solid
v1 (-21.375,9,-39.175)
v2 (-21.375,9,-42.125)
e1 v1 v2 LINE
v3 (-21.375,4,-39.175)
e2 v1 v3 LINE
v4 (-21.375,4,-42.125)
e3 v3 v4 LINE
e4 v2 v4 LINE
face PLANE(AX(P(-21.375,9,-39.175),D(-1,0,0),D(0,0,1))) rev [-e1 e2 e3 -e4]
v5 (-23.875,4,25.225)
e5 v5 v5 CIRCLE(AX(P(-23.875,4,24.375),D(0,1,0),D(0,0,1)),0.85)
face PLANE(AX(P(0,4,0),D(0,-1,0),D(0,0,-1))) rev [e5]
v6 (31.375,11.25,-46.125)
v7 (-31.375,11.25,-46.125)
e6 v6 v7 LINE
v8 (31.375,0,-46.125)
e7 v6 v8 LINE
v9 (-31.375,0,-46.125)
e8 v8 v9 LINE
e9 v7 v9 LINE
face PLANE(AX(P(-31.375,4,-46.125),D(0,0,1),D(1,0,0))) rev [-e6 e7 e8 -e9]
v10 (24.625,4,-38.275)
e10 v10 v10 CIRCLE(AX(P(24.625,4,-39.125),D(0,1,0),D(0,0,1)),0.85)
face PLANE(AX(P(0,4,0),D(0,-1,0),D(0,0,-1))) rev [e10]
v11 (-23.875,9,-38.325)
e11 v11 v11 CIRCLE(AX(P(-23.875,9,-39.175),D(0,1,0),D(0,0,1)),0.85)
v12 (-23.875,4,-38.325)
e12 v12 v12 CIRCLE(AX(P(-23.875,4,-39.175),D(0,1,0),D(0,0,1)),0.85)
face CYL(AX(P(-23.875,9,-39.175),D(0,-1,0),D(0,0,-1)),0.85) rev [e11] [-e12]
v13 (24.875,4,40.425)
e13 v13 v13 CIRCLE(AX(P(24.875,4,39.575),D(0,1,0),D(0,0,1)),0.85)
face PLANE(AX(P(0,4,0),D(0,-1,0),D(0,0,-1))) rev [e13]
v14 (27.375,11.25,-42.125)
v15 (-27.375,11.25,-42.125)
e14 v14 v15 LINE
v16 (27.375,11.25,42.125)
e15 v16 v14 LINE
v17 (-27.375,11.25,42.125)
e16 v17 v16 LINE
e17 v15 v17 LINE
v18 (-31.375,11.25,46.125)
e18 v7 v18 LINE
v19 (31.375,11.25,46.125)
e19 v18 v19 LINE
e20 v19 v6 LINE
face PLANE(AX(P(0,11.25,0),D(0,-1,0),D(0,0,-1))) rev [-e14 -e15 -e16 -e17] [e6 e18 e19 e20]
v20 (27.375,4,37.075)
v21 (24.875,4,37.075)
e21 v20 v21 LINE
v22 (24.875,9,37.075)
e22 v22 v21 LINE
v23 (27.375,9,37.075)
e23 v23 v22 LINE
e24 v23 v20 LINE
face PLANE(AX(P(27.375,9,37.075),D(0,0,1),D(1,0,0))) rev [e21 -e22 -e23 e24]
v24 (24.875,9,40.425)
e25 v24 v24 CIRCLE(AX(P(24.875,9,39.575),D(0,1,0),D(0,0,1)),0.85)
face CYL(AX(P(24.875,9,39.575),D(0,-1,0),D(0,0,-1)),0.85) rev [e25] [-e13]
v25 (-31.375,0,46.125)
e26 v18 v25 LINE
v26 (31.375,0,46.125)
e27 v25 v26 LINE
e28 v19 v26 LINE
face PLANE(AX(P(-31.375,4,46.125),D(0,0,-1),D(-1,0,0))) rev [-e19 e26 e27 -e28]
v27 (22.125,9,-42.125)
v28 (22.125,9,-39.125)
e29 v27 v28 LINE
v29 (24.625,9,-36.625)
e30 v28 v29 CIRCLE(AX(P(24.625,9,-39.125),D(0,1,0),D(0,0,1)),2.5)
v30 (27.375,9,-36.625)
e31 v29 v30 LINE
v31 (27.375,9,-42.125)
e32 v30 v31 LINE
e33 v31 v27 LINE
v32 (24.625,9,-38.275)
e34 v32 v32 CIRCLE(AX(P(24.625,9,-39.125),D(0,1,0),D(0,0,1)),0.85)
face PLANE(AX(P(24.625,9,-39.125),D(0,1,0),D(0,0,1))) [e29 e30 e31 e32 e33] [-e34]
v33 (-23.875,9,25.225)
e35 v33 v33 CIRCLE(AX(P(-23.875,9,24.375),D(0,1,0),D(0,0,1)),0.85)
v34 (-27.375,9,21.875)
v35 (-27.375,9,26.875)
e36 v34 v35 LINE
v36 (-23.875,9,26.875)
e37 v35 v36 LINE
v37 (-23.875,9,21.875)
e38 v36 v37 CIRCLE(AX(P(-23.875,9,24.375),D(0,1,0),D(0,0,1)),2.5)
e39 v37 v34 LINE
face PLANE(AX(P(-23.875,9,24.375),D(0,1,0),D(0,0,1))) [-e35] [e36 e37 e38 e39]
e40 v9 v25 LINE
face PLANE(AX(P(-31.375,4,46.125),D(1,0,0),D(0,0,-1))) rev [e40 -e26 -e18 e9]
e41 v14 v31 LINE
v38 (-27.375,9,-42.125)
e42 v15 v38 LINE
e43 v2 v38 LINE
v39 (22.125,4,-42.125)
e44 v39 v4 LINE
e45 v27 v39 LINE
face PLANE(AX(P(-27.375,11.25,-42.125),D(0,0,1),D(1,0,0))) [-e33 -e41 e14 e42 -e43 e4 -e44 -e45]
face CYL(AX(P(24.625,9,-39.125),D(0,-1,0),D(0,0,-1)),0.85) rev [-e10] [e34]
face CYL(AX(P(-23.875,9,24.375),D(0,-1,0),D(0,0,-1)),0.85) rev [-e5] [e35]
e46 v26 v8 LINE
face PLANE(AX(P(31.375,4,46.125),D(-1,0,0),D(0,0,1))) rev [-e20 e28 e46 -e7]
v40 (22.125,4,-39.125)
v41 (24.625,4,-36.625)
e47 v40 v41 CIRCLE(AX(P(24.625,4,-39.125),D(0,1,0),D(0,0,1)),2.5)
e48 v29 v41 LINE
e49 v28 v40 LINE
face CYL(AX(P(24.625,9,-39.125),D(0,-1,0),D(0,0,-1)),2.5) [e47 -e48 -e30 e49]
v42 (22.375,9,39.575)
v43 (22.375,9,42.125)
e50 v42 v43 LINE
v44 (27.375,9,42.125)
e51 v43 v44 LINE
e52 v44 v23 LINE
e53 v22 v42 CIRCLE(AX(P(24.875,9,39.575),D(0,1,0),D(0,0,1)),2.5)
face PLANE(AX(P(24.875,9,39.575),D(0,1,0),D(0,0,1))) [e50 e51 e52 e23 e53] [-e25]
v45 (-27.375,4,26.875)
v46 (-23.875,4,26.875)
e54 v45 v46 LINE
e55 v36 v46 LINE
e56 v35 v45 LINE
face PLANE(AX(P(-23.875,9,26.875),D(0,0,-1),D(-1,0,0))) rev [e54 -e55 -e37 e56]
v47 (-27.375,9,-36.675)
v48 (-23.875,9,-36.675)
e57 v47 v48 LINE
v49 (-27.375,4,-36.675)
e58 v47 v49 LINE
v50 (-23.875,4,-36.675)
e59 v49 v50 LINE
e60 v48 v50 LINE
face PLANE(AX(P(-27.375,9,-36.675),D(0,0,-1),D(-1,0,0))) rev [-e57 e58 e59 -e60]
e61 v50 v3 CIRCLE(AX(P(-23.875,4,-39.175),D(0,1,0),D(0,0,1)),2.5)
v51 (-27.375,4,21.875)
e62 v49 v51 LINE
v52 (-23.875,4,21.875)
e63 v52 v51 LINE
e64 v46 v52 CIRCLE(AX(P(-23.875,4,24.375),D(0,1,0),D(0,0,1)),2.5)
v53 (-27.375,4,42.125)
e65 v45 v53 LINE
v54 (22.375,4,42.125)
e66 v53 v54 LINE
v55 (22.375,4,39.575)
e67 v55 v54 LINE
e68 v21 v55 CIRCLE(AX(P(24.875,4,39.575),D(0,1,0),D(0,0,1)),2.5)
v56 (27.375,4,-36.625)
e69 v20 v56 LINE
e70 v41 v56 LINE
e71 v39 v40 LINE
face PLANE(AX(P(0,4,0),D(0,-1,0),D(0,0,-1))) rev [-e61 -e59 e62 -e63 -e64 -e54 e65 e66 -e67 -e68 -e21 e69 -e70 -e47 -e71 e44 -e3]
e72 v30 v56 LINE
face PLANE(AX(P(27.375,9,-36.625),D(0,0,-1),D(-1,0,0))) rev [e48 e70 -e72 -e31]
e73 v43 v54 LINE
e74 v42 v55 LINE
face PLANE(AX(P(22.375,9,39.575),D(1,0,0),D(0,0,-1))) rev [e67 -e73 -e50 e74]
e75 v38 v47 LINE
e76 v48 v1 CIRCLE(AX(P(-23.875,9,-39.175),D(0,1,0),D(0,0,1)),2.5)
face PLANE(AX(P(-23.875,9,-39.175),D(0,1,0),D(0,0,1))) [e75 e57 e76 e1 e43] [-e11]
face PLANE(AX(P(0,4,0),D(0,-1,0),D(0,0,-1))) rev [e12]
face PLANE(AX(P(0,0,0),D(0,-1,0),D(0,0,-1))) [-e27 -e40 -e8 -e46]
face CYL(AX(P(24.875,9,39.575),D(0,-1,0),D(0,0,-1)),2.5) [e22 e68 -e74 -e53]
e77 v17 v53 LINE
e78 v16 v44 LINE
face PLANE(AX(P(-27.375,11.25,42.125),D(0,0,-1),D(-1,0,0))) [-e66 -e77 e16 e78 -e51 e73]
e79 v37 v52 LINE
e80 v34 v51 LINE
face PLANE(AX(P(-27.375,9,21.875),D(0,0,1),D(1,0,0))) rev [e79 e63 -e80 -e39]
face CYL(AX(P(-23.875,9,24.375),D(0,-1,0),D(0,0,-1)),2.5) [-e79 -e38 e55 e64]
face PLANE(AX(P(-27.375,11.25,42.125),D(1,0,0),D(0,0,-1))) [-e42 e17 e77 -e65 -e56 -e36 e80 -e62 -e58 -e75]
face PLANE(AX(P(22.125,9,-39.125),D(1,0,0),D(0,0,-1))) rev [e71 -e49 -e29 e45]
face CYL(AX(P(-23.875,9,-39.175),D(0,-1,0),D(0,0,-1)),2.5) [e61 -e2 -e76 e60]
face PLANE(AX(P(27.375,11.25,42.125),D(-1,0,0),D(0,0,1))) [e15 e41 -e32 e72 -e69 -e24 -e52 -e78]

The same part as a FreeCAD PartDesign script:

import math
import FreeCAD as App
import Part
import Sketcher
from FreeCAD import Vector

doc = App.newDocument("Part")
body = doc.addObject("PartDesign::Body", "Body")

sketch1 = doc.addObject("Sketcher::SketchObject", "Sketch")
body.addObject(sketch1)
sketch1.AttachmentSupport = (doc.XZ_Plane, [""])
sketch1.MapMode = "FlatFace"
sketch1.addGeometry(Part.LineSegment(Vector(-31, -46, 0), Vector(-31, 46, 0)), False)
sketch1.addGeometry(Part.LineSegment(Vector(-31, 46, 0), Vector(31, 46, 0)), False)
sketch1.addGeometry(Part.LineSegment(Vector(31, 46, 0), Vector(31, -46, 0)), False)
sketch1.addGeometry(Part.LineSegment(Vector(31, -46, 0), Vector(-31, -46, 0)), False)
sketch1.addConstraint(Sketcher.Constraint("Coincident", 0, 2, 1, 1))
sketch1.addConstraint(Sketcher.Constraint("Coincident", 1, 2, 2, 1))
sketch1.addConstraint(Sketcher.Constraint("Coincident", 2, 2, 3, 1))
sketch1.addConstraint(Sketcher.Constraint("Coincident", 3, 2, 0, 1))
sketch1.addConstraint(Sketcher.Constraint("Vertical", 0))
sketch1.addConstraint(Sketcher.Constraint("Horizontal", 1))
sketch1.addConstraint(Sketcher.Constraint("Vertical", 2))
sketch1.addConstraint(Sketcher.Constraint("Horizontal", 3))
sketch1.addConstraint(Sketcher.Constraint("Symmetric", 0, 2, 2, 2, -1, 1))
sketch1.addConstraint(Sketcher.Constraint("DistanceX", 1, 1, 1, 2, 62.75))
sketch1.addConstraint(Sketcher.Constraint("DistanceY", 0, 1, 0, 2, 92.25))
pad1 = doc.addObject("PartDesign::Pad", "Pad")
body.addObject(pad1)
pad1.Profile = sketch1
pad1.Length = 4
pad1.Reversed = True

sketch2 = doc.addObject("Sketcher::SketchObject", "Sketch001")
body.addObject(sketch2)
sketch2.AttachmentSupport = (doc.XZ_Plane, [""])
sketch2.MapMode = "FlatFace"
sketch2.AttachmentOffset = App.Placement(Vector(0, 0, -4), App.Rotation())
sketch2.addGeometry(Part.LineSegment(Vector(-31, -46, 0), Vector(-31, 46, 0)), False)
sketch2.addGeometry(Part.LineSegment(Vector(-31, 46, 0), Vector(31, 46, 0)), False)
sketch2.addGeometry(Part.LineSegment(Vector(31, 46, 0), Vector(31, -46, 0)), False)
sketch2.addGeometry(Part.LineSegment(Vector(31, -46, 0), Vector(-31, -46, 0)), False)
sketch2.addGeometry(Part.LineSegment(Vector(27, 42, 0), Vector(-27, 42, 0)), False)
sketch2.addGeometry(Part.LineSegment(Vector(-27, 42, 0), Vector(-27, -42, 0)), False)
sketch2.addGeometry(Part.LineSegment(Vector(-27, -42, 0), Vector(27, -42, 0)), False)
sketch2.addGeometry(Part.LineSegment(Vector(27, -42, 0), Vector(27, 42, 0)), False)
sketch2.addConstraint(Sketcher.Constraint("Coincident", 0, 2, 1, 1))
sketch2.addConstraint(Sketcher.Constraint("Coincident", 1, 2, 2, 1))
sketch2.addConstraint(Sketcher.Constraint("Coincident", 2, 2, 3, 1))
sketch2.addConstraint(Sketcher.Constraint("Coincident", 3, 2, 0, 1))
sketch2.addConstraint(Sketcher.Constraint("Coincident", 4, 2, 5, 1))
sketch2.addConstraint(Sketcher.Constraint("Coincident", 5, 2, 6, 1))
sketch2.addConstraint(Sketcher.Constraint("Coincident", 6, 2, 7, 1))
sketch2.addConstraint(Sketcher.Constraint("Coincident", 7, 2, 4, 1))
sketch2.addConstraint(Sketcher.Constraint("Vertical", 0))
sketch2.addConstraint(Sketcher.Constraint("Horizontal", 1))
sketch2.addConstraint(Sketcher.Constraint("Vertical", 2))
sketch2.addConstraint(Sketcher.Constraint("Horizontal", 3))
sketch2.addConstraint(Sketcher.Constraint("Horizontal", 4))
sketch2.addConstraint(Sketcher.Constraint("Vertical", 5))
sketch2.addConstraint(Sketcher.Constraint("Horizontal", 6))
sketch2.addConstraint(Sketcher.Constraint("Vertical", 7))
sketch2.addConstraint(Sketcher.Constraint("Symmetric", 0, 2, 2, 2, -1, 1))
sketch2.addConstraint(Sketcher.Constraint("Symmetric", 4, 2, 6, 2, -1, 1))
sketch2.addConstraint(Sketcher.Constraint("DistanceX", 0, 2, 4, 2, 4.0))
sketch2.addConstraint(Sketcher.Constraint("DistanceY", 4, 2, 0, 2, 4.0))
sketch2.addConstraint(Sketcher.Constraint("DistanceX", 1, 1, 1, 2, 62.75))
sketch2.addConstraint(Sketcher.Constraint("DistanceY", 0, 1, 0, 2, 92.25))
pad2 = doc.addObject("PartDesign::Pad", "Pad001")
body.addObject(pad2)
pad2.Profile = sketch2
pad2.Length = 7.25
pad2.Reversed = True

sketch3 = doc.addObject("Sketcher::SketchObject", "Sketch002")
body.addObject(sketch3)
sketch3.AttachmentSupport = (doc.XZ_Plane, [""])
sketch3.MapMode = "FlatFace"
sketch3.AttachmentOffset = App.Placement(Vector(0, 0, -4), App.Rotation())
sketch3.addGeometry(Part.LineSegment(Vector(-21.4, -39.2, 0), Vector(-21.4, -42.1, 0)), False)
sketch3.addGeometry(Part.LineSegment(Vector(-21.4, -42.1, 0), Vector(-27.4, -42.1, 0)), False)
sketch3.addGeometry(Part.LineSegment(Vector(-27.4, -42.1, 0), Vector(-27.4, -36.7, 0)), False)
sketch3.addGeometry(Part.LineSegment(Vector(-27.4, -36.7, 0), Vector(-23.9, -36.7, 0)), False)
sketch3.addGeometry(Part.ArcOfCircle(Part.Circle(Vector(-23.9, -39.2, 0), Vector(0, 0, 1), 2.5), math.radians(0), math.radians(90)), False)
sketch3.addGeometry(Part.Circle(Vector(-23.9, -39.2, 0), Vector(0, 0, 1), 0.8), False)
sketch3.addGeometry(Part.LineSegment(Vector(22.1, -42.1, 0), Vector(22.1, -39.1, 0)), False)
sketch3.addGeometry(Part.ArcOfCircle(Part.Circle(Vector(24.6, -39.1, 0), Vector(0, 0, 1), 2.5), math.radians(90), math.radians(180)), False)
sketch3.addGeometry(Part.LineSegment(Vector(24.6, -36.6, 0), Vector(27.4, -36.6, 0)), False)
sketch3.addGeometry(Part.LineSegment(Vector(27.4, -36.6, 0), Vector(27.4, -42.1, 0)), False)
sketch3.addGeometry(Part.LineSegment(Vector(27.4, -42.1, 0), Vector(22.1, -42.1, 0)), False)
sketch3.addGeometry(Part.Circle(Vector(24.6, -39.1, 0), Vector(0, 0, 1), 0.8), False)
sketch3.addGeometry(Part.LineSegment(Vector(22.4, 39.6, 0), Vector(22.4, 42.1, 0)), False)
sketch3.addGeometry(Part.LineSegment(Vector(22.4, 42.1, 0), Vector(27.4, 42.1, 0)), False)
sketch3.addGeometry(Part.LineSegment(Vector(27.4, 42.1, 0), Vector(27.4, 37.1, 0)), False)
sketch3.addGeometry(Part.LineSegment(Vector(27.4, 37.1, 0), Vector(24.9, 37.1, 0)), False)
sketch3.addGeometry(Part.ArcOfCircle(Part.Circle(Vector(24.9, 39.6, 0), Vector(0, 0, 1), 2.5), math.radians(180), math.radians(270)), False)
sketch3.addGeometry(Part.Circle(Vector(24.9, 39.6, 0), Vector(0, 0, 1), 0.8), False)
sketch3.addGeometry(Part.LineSegment(Vector(-27.4, 26.9, 0), Vector(-23.9, 26.9, 0)), False)
sketch3.addGeometry(Part.ArcOfCircle(Part.Circle(Vector(-23.9, 24.4, 0), Vector(0, 0, 1), 2.5), math.radians(-90), math.radians(90)), False)
sketch3.addGeometry(Part.LineSegment(Vector(-23.9, 21.9, 0), Vector(-27.4, 21.9, 0)), False)
sketch3.addGeometry(Part.LineSegment(Vector(-27.4, 21.9, 0), Vector(-27.4, 26.9, 0)), False)
sketch3.addGeometry(Part.Circle(Vector(-23.9, 24.4, 0), Vector(0, 0, 1), 0.8), False)
sketch3.addConstraint(Sketcher.Constraint("Coincident", 0, 2, 1, 1))
sketch3.addConstraint(Sketcher.Constraint("Coincident", 1, 2, 2, 1))
sketch3.addConstraint(Sketcher.Constraint("Coincident", 2, 2, 3, 1))
sketch3.addConstraint(Sketcher.Constraint("Tangent", 3, 2, 4, 2))
sketch3.addConstraint(Sketcher.Constraint("Tangent", 4, 1, 0, 1))
sketch3.addConstraint(Sketcher.Constraint("Tangent", 6, 2, 7, 2))
sketch3.addConstraint(Sketcher.Constraint("Tangent", 7, 1, 8, 1))
sketch3.addConstraint(Sketcher.Constraint("Coincident", 8, 2, 9, 1))
sketch3.addConstraint(Sketcher.Constraint("Coincident", 9, 2, 10, 1))
sketch3.addConstraint(Sketcher.Constraint("Coincident", 10, 2, 6, 1))
sketch3.addConstraint(Sketcher.Constraint("Coincident", 12, 2, 13, 1))
sketch3.addConstraint(Sketcher.Constraint("Coincident", 13, 2, 14, 1))
sketch3.addConstraint(Sketcher.Constraint("Coincident", 14, 2, 15, 1))
sketch3.addConstraint(Sketcher.Constraint("Tangent", 15, 2, 16, 2))
sketch3.addConstraint(Sketcher.Constraint("Tangent", 16, 1, 12, 1))
sketch3.addConstraint(Sketcher.Constraint("Tangent", 18, 2, 19, 2))
sketch3.addConstraint(Sketcher.Constraint("Tangent", 19, 1, 20, 1))
sketch3.addConstraint(Sketcher.Constraint("Coincident", 20, 2, 21, 1))
sketch3.addConstraint(Sketcher.Constraint("Coincident", 21, 2, 18, 1))
sketch3.addConstraint(Sketcher.Constraint("Vertical", 0))
sketch3.addConstraint(Sketcher.Constraint("Horizontal", 1))
sketch3.addConstraint(Sketcher.Constraint("Vertical", 2))
sketch3.addConstraint(Sketcher.Constraint("Horizontal", 3))
sketch3.addConstraint(Sketcher.Constraint("Vertical", 6))
sketch3.addConstraint(Sketcher.Constraint("Horizontal", 8))
sketch3.addConstraint(Sketcher.Constraint("Vertical", 9))
sketch3.addConstraint(Sketcher.Constraint("Horizontal", 10))
sketch3.addConstraint(Sketcher.Constraint("Vertical", 12))
sketch3.addConstraint(Sketcher.Constraint("Horizontal", 13))
sketch3.addConstraint(Sketcher.Constraint("Vertical", 14))
sketch3.addConstraint(Sketcher.Constraint("Horizontal", 15))
sketch3.addConstraint(Sketcher.Constraint("Horizontal", 18))
sketch3.addConstraint(Sketcher.Constraint("Horizontal", 20))
sketch3.addConstraint(Sketcher.Constraint("Vertical", 21))
sketch3.addConstraint(Sketcher.Constraint("Coincident", 5, 3, 4, 3))
sketch3.addConstraint(Sketcher.Constraint("Coincident", 11, 3, 7, 3))
sketch3.addConstraint(Sketcher.Constraint("Coincident", 17, 3, 16, 3))
sketch3.addConstraint(Sketcher.Constraint("Coincident", 22, 3, 19, 3))
sketch3.addConstraint(Sketcher.Constraint("Equal", 4, 7))
sketch3.addConstraint(Sketcher.Constraint("Equal", 5, 11))
sketch3.addConstraint(Sketcher.Constraint("Equal", 7, 16))
sketch3.addConstraint(Sketcher.Constraint("Equal", 11, 17))
sketch3.addConstraint(Sketcher.Constraint("Equal", 16, 19))
sketch3.addConstraint(Sketcher.Constraint("Equal", 17, 22))
sketch3.addConstraint(Sketcher.Constraint("Symmetric", 1, 2, 13, 2, -1, 1))
sketch3.addConstraint(Sketcher.Constraint("Symmetric", 1, 2, 9, 2, -2))
sketch3.addConstraint(Sketcher.Constraint("Vertical", 5, 3, 19, 3))
sketch3.addConstraint(Sketcher.Constraint("Vertical", 2, 2, 20, 2))
sketch3.addConstraint(Sketcher.Constraint("Equal", 13, 21))
sketch3.addConstraint(Sketcher.Constraint("Diameter", 5, 1.7))
sketch3.addConstraint(Sketcher.Constraint("Radius", 4, 2.5))
sketch3.addConstraint(Sketcher.Constraint("DistanceX", 1, 2, 1, 1, 6.0))
sketch3.addConstraint(Sketcher.Constraint("DistanceY", 6, 1, 6, 2, 3.0))
sketch3.addConstraint(Sketcher.Constraint("DistanceX", 0, 2, 7, 3, 46.0))
sketch3.addConstraint(Sketcher.Constraint("DistanceX", 8, 1, 8, 2, 2.75))
sketch3.addConstraint(Sketcher.Constraint("DistanceY", 0, 2, 0, 1, 2.95))
sketch3.addConstraint(Sketcher.Constraint("DistanceY", 12, 1, 12, 2, 2.55))
sketch3.addConstraint(Sketcher.Constraint("DistanceY", 7, 3, 16, 3, 78.7))
sketch3.addConstraint(Sketcher.Constraint("DistanceY", 19, 3, 16, 3, 15.2))
pad3 = doc.addObject("PartDesign::Pad", "Pad002")
body.addObject(pad3)
pad3.Profile = sketch3
pad3.Length = 5
pad3.Reversed = True

doc.recompute()
